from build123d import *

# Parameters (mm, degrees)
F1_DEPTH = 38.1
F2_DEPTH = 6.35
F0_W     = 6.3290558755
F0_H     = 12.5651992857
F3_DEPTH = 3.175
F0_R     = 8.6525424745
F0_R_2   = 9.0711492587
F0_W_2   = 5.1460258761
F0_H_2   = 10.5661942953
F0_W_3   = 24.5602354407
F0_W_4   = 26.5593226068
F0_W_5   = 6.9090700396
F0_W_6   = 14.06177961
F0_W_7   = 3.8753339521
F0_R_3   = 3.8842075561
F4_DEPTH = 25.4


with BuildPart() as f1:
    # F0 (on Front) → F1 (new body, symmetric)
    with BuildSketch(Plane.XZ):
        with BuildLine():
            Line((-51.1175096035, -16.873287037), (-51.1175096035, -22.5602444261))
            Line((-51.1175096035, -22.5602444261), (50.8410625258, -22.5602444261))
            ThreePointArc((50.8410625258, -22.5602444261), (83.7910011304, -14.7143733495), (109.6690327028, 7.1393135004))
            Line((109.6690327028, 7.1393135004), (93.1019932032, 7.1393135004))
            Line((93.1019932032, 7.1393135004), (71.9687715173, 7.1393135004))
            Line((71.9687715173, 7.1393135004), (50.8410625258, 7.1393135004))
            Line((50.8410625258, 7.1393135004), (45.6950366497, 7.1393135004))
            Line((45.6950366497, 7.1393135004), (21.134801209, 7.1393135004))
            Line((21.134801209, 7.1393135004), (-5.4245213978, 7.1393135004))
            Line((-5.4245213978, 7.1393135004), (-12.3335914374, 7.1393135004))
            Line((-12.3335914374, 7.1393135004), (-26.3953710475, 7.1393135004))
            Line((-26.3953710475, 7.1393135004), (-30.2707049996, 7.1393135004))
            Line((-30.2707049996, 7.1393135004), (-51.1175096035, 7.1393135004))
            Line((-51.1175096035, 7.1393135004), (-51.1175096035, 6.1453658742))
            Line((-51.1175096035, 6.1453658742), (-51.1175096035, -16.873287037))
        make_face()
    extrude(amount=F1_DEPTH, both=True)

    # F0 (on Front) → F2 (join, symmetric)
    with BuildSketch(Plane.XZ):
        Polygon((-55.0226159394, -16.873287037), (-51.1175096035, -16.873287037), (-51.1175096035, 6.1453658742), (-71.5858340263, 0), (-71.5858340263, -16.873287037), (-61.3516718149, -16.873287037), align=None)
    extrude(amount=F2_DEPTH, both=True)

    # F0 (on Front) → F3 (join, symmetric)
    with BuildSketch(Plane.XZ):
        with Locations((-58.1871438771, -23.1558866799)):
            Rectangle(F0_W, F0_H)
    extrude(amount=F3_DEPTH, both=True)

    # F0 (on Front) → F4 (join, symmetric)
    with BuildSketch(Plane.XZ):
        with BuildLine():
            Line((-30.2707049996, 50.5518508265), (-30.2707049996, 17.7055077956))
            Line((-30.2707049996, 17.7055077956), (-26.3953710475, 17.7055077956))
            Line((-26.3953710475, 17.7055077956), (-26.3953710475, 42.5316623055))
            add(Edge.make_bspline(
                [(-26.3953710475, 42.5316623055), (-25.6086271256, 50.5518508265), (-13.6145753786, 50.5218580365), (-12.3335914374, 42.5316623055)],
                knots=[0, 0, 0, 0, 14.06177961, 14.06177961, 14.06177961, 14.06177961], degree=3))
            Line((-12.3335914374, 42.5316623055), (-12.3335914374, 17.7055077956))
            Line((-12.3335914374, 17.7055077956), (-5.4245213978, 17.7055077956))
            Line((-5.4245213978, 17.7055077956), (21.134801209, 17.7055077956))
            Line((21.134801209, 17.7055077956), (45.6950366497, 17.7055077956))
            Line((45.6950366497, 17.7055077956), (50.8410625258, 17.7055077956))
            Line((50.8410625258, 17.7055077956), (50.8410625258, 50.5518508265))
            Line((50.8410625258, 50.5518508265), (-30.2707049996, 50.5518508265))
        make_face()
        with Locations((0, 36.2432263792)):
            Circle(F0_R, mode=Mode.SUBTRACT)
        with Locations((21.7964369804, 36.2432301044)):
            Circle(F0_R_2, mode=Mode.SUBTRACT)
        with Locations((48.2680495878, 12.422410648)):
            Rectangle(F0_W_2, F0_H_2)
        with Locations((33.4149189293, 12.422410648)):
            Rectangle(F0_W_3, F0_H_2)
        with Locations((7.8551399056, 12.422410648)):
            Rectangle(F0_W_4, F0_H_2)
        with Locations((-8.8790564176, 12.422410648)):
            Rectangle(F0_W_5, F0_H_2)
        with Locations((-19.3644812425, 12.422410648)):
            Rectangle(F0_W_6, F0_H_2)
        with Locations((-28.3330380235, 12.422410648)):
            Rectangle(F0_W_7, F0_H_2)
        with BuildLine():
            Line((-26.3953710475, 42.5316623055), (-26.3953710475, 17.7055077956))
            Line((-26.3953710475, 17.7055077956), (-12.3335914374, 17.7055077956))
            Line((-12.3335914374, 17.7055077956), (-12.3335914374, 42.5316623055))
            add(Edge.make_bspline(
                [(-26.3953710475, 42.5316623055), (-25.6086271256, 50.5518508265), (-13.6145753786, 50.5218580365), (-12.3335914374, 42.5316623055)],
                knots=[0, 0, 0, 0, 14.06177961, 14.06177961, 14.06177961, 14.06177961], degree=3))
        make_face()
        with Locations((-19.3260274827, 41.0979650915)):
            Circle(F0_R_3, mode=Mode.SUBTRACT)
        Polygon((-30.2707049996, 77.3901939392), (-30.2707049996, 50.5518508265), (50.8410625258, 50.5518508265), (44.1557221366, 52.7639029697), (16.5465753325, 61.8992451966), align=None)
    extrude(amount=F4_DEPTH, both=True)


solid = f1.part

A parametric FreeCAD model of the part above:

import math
import FreeCAD as App
import Part
import Sketcher

V = App.Vector
Q = App.Units.Quantity


def add_polygon(sketch, points):
    """Adds a closed chain of lines whose ends are joined by coincident constraints."""
    first, n = sketch.GeometryCount, len(points)
    for a, b in zip(points, points[1:] + points[:1]):
        sketch.addGeometry(Part.LineSegment(App.Vector(*a, 0), App.Vector(*b, 0)), False)
    for i in range(n):
        sketch.addConstraint(Sketcher.Constraint("Coincident", first + i, 2, first + (i + 1) % n, 1))

doc = App.newDocument("Part")
params = doc.addObject("Spreadsheet::Sheet", "Params")
for row, (alias, value) in enumerate([
    ("pad1_length", "3 in"),
    ("pad2_length", "0.5 in"),
    ("pad3_length", "0.25 in"),
    ("pad4_length", "2 in"),
], start=1):
    params.set(f"A{row}", alias)
    params.set(f"B{row}", "=" + value)
    params.setAlias(f"B{row}", alias)

body = doc.addObject("PartDesign::Body", "Body")

sketch1 = doc.addObject("Sketcher::SketchObject", "Sketch")
body.addObject(sketch1)
sketch1.AttachmentSupport = (doc.XZ_Plane, [""])
sketch1.MapMode = "FlatFace"
sketch1.addGeometry(Part.LineSegment(V(-51, -23, 0), V(51, -23, 0)), False)
sketch1.addGeometry(Part.ArcOfCircle(Part.Circle(V(51, 51, 0), V(0, 0, 1), 73), math.radians(-90), math.radians(-36)), False)
sketch1.addGeometry(Part.LineSegment(V(110, 7, 0), V(-51, 7, 0)), False)
sketch1.addGeometry(Part.LineSegment(V(-51, 7, 0), V(-51, -23, 0)), False)
sketch1.addConstraint(Sketcher.Constraint("Tangent", 0, 2, 1, 1))
sketch1.addConstraint(Sketcher.Constraint("Coincident", 1, 2, 2, 1))
sketch1.addConstraint(Sketcher.Constraint("Coincident", 2, 2, 3, 1))
sketch1.addConstraint(Sketcher.Constraint("Coincident", 3, 2, 0, 1))
sketch1.addConstraint(Sketcher.Constraint("Horizontal", 0))
sketch1.addConstraint(Sketcher.Constraint("Horizontal", 2))
sketch1.addConstraint(Sketcher.Constraint("Vertical", 3))
sketch1.addConstraint(Sketcher.Constraint("Radius", 1, 73.112095))
sketch1.addConstraint(Sketcher.Constraint("DistanceX", 0, 1, 0, 2, 101.958572))
sketch1.addConstraint(Sketcher.Constraint("DistanceX", 2, 2, 2, 1, 160.786542))
sketch1.addConstraint(Sketcher.Constraint("DistanceY", -1, 1, 1, 3, 50.551851))
sketch1.addConstraint(Sketcher.Constraint("DistanceX", 2, 2, -1, 1, 51.11751))
pad1 = doc.addObject("PartDesign::Pad", "Pad")
body.addObject(pad1)
pad1.Profile = sketch1
pad1.setExpression("Length", "Params.pad1_length")
pad1.Midplane = True

sketch2 = doc.addObject("Sketcher::SketchObject", "Sketch001")
body.addObject(sketch2)
sketch2.AttachmentSupport = (doc.XZ_Plane, [""])
sketch2.MapMode = "FlatFace"
add_polygon(sketch2, [(-51, -17), (-51, 6), (-72, 0), (-72, -17)])
sketch2.addConstraint(Sketcher.Constraint("Vertical", 0))
sketch2.addConstraint(Sketcher.Constraint("Vertical", 2))
sketch2.addConstraint(Sketcher.Constraint("Horizontal", 3))
sketch2.addConstraint(Sketcher.Constraint("PointOnObject", 1, 2, -1))
sketch2.addConstraint(Sketcher.Constraint("DistanceX", 3, 1, 3, 2, 20.468324))
sketch2.addConstraint(Sketcher.Constraint("DistanceY", 0, 1, 0, 2, 23.018653))
sketch2.addConstraint(Sketcher.Constraint("DistanceY", 2, 2, 2, 1, 16.873287))
sketch2.addConstraint(Sketcher.Constraint("DistanceX", 0, 2, -1, 1, 51.11751))
pad2 = doc.addObject("PartDesign::Pad", "Pad001")
body.addObject(pad2)
pad2.Profile = sketch2
pad2.setExpression("Length", "Params.pad2_length")
pad2.Midplane = True

sketch3 = doc.addObject("Sketcher::SketchObject", "Sketch002")
body.addObject(sketch3)
sketch3.AttachmentSupport = (doc.XZ_Plane, [""])
sketch3.MapMode = "FlatFace"
add_polygon(sketch3, [(-61, -17), (-61, -29), (-55, -29), (-55, -17)])
sketch3.addConstraint(Sketcher.Constraint("Vertical", 0))
sketch3.addConstraint(Sketcher.Constraint("Horizontal", 1))
sketch3.addConstraint(Sketcher.Constraint("Vertical", 2))
sketch3.addConstraint(Sketcher.Constraint("Horizontal", 3))
sketch3.addConstraint(Sketcher.Constraint("DistanceY", 0, 2, 0, 1, 12.565199))
sketch3.addConstraint(Sketcher.Constraint("DistanceX", 1, 1, 1, 2, 6.329056))
sketch3.addConstraint(Sketcher.Constraint("DistanceX", 0, 2, -1, 1, 61.351672))
sketch3.addConstraint(Sketcher.Constraint("DistanceY", 0, 2, -1, 1, 29.438486))
pad3 = doc.addObject("PartDesign::Pad", "Pad002")
body.addObject(pad3)
pad3.Profile = sketch3
pad3.setExpression("Length", "Params.pad3_length")
pad3.Midplane = True

sketch4 = doc.addObject("Sketcher::SketchObject", "Sketch003")
body.addObject(sketch4)
sketch4.AttachmentSupport = (doc.XZ_Plane, [""])
sketch4.MapMode = "FlatFace"
add_polygon(sketch4, [(-30.3, 50.6), (-30.3, 7.1), (50.8, 7.1), (50.8, 17.7), (50.8, 50.6), (44.2, 52.8), (16.5, 61.9), (-30.3, 77.4)])
sketch4.addGeometry(Part.Circle(V(0, 36.2, 0), V(0, 0, 1), 8.7), False)
sketch4.addGeometry(Part.Circle(V(-19.3, 41.1, 0), V(0, 0, 1), 3.9), False)
sketch4.addGeometry(Part.Circle(V(21.8, 36.2, 0), V(0, 0, 1), 9.1), False)
sketch4.addConstraint(Sketcher.Constraint("Vertical", 0))
sketch4.addConstraint(Sketcher.Constraint("Horizontal", 1))
sketch4.addConstraint(Sketcher.Constraint("Vertical", 2))
sketch4.addConstraint(Sketcher.Constraint("Vertical", 3))
sketch4.addConstraint(Sketcher.Constraint("Vertical", 7))
sketch4.addConstraint(Sketcher.Constraint("PointOnObject", 8, 3, -2))
sketch4.addConstraint(Sketcher.Constraint("Parallel", 4, 5))
sketch4.addConstraint(Sketcher.Constraint("Parallel", 5, 6))
sketch4.addConstraint(Sketcher.Constraint("Horizontal", 3, 2, 7, 2))
sketch4.addConstraint(Sketcher.Constraint("Diameter", 10, 18.142299))
sketch4.addConstraint(Sketcher.Constraint("Diameter", 8, 17.305085))
sketch4.addConstraint(Sketcher.Constraint("Diameter", 9, 7.768415))
sketch4.addConstraint(Sketcher.Constraint("DistanceX", 6, 2, 5, 2, Q("1.8432 in")))
sketch4.addConstraint(Sketcher.Constraint("Distance", 4, 7.0418))
sketch4.addConstraint(Sketcher.Constraint("Distance", 6, 49.31356))
sketch4.addConstraint(Sketcher.Constraint("DistanceX", 1, 1, 1, 2, 81.111768))
sketch4.addConstraint(Sketcher.Constraint("DistanceY", 0, 2, 0, 1, 43.412537))
sketch4.addConstraint(Sketcher.Constraint("DistanceY", 2, 1, 2, 2, 10.566194))
sketch4.addConstraint(Sketcher.Constraint("DistanceY", -1, 1, 10, 3, 36.24323))
sketch4.addConstraint(Sketcher.Constraint("DistanceY", -1, 1, 3, 2, 50.551851))
sketch4.addConstraint(Sketcher.Constraint("DistanceY", 8, 3, 9, 3, 4.854739))
sketch4.addConstraint(Sketcher.Constraint("DistanceY", 0, 2, 9, 3, 33.958652))
sketch4.addConstraint(Sketcher.Constraint("DistanceX", 0, 2, 10, 3, 52.067142))
sketch4.addConstraint(Sketcher.Constraint("DistanceX", 9, 3, 1, 2, 70.16709))
sketch4.addConstraint(Sketcher.Constraint("DistanceX", 9, 3, -1, 1, 19.326027))
pad4 = doc.addObject("PartDesign::Pad", "Pad003")
body.addObject(pad4)
pad4.Profile = sketch4
pad4.setExpression("Length", "Params.pad4_length")
pad4.Midplane = True

doc.recompute()
